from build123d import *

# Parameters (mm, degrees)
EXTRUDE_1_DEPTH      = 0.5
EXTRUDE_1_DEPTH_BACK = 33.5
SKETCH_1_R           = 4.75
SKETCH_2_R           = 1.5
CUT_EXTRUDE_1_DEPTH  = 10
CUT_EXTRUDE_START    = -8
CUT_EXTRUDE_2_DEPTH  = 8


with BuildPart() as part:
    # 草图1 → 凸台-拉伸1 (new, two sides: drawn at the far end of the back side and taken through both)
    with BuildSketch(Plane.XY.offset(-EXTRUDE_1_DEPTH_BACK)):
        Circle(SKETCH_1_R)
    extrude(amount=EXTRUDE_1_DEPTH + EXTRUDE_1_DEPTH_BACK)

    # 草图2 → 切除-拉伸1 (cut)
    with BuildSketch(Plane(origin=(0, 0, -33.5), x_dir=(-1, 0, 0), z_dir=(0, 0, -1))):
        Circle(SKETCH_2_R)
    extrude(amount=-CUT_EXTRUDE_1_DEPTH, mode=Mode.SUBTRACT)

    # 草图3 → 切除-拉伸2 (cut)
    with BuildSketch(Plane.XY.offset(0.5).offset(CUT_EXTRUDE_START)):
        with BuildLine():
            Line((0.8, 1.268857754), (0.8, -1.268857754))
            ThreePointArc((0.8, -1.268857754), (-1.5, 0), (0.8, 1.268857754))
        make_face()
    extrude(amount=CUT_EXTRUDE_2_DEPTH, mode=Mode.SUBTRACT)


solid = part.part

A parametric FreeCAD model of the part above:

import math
import FreeCAD as App
import Part
import Sketcher
Q = App.Units.Quantity

doc = App.newDocument("Part")
body = doc.addObject("PartDesign::Body", "Body")

# Sketch on XY plane
sketch1 = body.newObject("Sketcher::SketchObject", "Sketch")
sketch1.AttachmentSupport = (doc.getObject("XY_Plane"), [""])
sketch1.MapMode = "FlatFace"
sketch1.addGeometry(Part.Circle(App.Vector(0, 0, 0), App.Vector(0, 0, 1), 4.8), False)
sketch1.addConstraint([
    Sketcher.Constraint("Coincident", 0, 3, -1, 1),
    Sketcher.Constraint("Diameter", 0, Q("9.5 mm")),
])
pad1 = body.newObject("PartDesign::Pad", "Pad")
pad1.Profile = sketch1
pad1.Type = "TwoLengths"
pad1.Length = 0.5
pad1.Length2 = 33.5

# Sketch on XY plane
sketch2 = body.newObject("Sketcher::SketchObject", "Sketch001")
sketch2.AttachmentSupport = (doc.getObject("XY_Plane"), [""])
sketch2.MapMode = "FlatFace"
sketch2.AttachmentOffset = App.Placement(App.Vector(0, 0, -33.5), App.Rotation())
sketch2.addGeometry(Part.Circle(App.Vector(0, 0, 0), App.Vector(0, 0, 1), 1.5), False)
sketch2.addConstraint([
    Sketcher.Constraint("Coincident", 0, 3, -1, 1),
    Sketcher.Constraint("Diameter", 0, Q("3 mm")),
])
pocket1 = body.newObject("PartDesign::Pocket", "Pocket")
pocket1.Profile = sketch2
pocket1.Length = 10
pocket1.Reversed = True

# Sketch on XY plane
sketch3 = body.newObject("Sketcher::SketchObject", "Sketch002")
sketch3.AttachmentSupport = (doc.getObject("XY_Plane"), [""])
sketch3.MapMode = "FlatFace"
sketch3.AttachmentOffset = App.Placement(App.Vector(0, 0, -7.5), App.Rotation())
sketch3.addGeometry([
    Part.LineSegment(App.Vector(0.8, -1.3, 0), App.Vector(0.8, 1.3, 0)),
    Part.ArcOfCircle(Part.Circle(App.Vector(0, 0, 0), App.Vector(0, 0, 1), 1.5), math.radians(58), math.radians(302)),
], False)
sketch3.addConstraint([
    Sketcher.Constraint("Coincident", 0, 1, 1, 2),
    Sketcher.Constraint("Coincident", 1, 1, 0, 2),
    Sketcher.Constraint("Vertical", 0),
    Sketcher.Constraint("Coincident", 1, 3, -1, 1),
    Sketcher.Constraint("Radius", 1, Q("1.5 mm")),
    Sketcher.Constraint("DistanceX", -1, 1, 0, 1, Q("0.8 mm")),
])
pocket2 = body.newObject("PartDesign::Pocket", "Pocket001")
pocket2.Profile = sketch3
pocket2.Length = 8
pocket2.Reversed = True

doc.recompute()
